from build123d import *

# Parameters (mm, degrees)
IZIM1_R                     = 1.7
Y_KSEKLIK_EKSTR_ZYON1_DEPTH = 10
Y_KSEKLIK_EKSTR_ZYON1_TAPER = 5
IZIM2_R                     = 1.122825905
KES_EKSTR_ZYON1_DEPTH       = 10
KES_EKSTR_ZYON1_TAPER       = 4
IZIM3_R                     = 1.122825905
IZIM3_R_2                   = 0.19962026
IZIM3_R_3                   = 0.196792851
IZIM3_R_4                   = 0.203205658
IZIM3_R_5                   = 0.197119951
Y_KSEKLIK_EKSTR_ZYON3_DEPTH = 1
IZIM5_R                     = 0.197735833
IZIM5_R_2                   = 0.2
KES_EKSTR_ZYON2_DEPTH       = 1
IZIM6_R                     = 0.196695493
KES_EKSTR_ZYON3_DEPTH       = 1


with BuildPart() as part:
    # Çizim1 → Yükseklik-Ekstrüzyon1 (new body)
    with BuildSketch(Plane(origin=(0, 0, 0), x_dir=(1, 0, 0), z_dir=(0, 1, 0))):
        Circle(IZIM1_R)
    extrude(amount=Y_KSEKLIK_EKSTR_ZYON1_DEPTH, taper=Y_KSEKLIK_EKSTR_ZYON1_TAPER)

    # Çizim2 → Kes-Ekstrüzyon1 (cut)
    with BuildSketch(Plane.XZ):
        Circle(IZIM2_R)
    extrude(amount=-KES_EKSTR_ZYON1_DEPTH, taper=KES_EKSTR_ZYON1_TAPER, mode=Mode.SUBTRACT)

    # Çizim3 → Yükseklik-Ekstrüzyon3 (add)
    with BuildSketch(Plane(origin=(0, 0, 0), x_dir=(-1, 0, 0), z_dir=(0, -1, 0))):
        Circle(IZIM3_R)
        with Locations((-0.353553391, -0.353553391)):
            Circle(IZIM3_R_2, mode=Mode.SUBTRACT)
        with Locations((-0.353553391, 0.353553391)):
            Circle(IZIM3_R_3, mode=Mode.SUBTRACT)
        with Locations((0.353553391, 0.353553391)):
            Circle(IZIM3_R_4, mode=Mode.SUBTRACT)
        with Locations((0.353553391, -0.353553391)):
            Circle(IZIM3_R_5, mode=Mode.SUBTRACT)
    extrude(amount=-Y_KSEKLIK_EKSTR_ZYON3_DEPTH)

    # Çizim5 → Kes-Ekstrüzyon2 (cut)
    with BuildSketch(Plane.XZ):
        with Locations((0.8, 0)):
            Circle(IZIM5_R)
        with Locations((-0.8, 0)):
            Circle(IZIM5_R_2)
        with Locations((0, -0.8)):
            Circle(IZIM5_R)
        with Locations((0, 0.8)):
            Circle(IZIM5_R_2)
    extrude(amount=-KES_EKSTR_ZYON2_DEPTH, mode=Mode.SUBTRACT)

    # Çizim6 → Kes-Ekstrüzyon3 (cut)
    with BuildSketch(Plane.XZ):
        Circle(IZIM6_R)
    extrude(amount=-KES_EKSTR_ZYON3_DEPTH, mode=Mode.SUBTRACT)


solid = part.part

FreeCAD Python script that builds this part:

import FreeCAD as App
import Part
import Sketcher

V = App.Vector

doc = App.newDocument("Part")
body = doc.addObject("PartDesign::Body", "Body")

# Sketch on XZ plane
sketch1 = body.newObject("Sketcher::SketchObject", "Sketch")
sketch1.AttachmentSupport = (doc.getObject("XZ_Plane"), [""])
sketch1.MapMode = "FlatFace"
sketch1.addGeometry(Part.Circle(V(0, 0, 0), V(0, 0, 1), 1.7), False)
sketch1.addConstraint([
    Sketcher.Constraint("Coincident", 0, 3, -1, 1),
    Sketcher.Constraint("Diameter", 0, 3.4),
])
pad1 = body.newObject("PartDesign::Pad", "Pad")
pad1.Profile = sketch1
pad1.Length = 10
pad1.Reversed = True
pad1.TaperAngle = -5

# Sketch on XZ plane
sketch2 = body.newObject("Sketcher::SketchObject", "Sketch001")
sketch2.AttachmentSupport = (doc.getObject("XZ_Plane"), [""])
sketch2.MapMode = "FlatFace"
sketch2.addGeometry(Part.Circle(V(0, 0, 0), V(0, 0, 1), 1.1), False)
sketch2.addConstraint([
    Sketcher.Constraint("Coincident", 0, 3, -1, 1),
    Sketcher.Constraint("Diameter", 0, 2.245652),
])
pocket1 = body.newObject("PartDesign::Pocket", "Pocket")
pocket1.Profile = sketch2
pocket1.Length = 10
pocket1.TaperAngle = -4

# Sketch on XZ plane
sketch3 = body.newObject("Sketcher::SketchObject", "Sketch002")
sketch3.AttachmentSupport = (doc.getObject("XZ_Plane"), [""])
sketch3.MapMode = "FlatFace"
sketch3.addGeometry([
    Part.Circle(V(0, 0, 0), V(0, 0, 1), 1.12),  # 0
    Part.Circle(V(0.35, 0.35, 0), V(0, 0, 1), 0.2),  # 1
    Part.Circle(V(-0.35, 0.35, 0), V(0, 0, 1), 0.2),  # 2
    Part.Circle(V(0.35, -0.35, 0), V(0, 0, 1), 0.2),  # 3
    Part.Circle(V(-0.35, -0.35, 0), V(0, 0, 1), 0.2),  # 4
], False)
sketch3.addConstraint([
    Sketcher.Constraint("Coincident", 0, 3, -1, 1),
    Sketcher.Constraint("Symmetric", 2, 3, 3, 3, -1, 1),
    Sketcher.Constraint("Symmetric", 1, 3, 4, 3, -1, 1),
    Sketcher.Constraint("Symmetric", 1, 3, 2, 3, -2),
    Sketcher.Constraint("Diameter", 0, 2.245652),
    Sketcher.Constraint("Diameter", 1, 0.399241),
    Sketcher.Constraint("Diameter", 2, 0.39424),
    Sketcher.Constraint("Diameter", 4, 0.406411),
    Sketcher.Constraint("Diameter", 3, 0.393586),
    Sketcher.Constraint("DistanceX", -1, 1, 1, 3, 0.353553),
    Sketcher.Constraint("DistanceY", -1, 1, 1, 3, 0.353553),
])
pad2 = body.newObject("PartDesign::Pad", "Pad001")
pad2.Profile = sketch3
pad2.Length = 1
pad2.Reversed = True

# Sketch on XZ plane
sketch4 = body.newObject("Sketcher::SketchObject", "Sketch003")
sketch4.AttachmentSupport = (doc.getObject("XZ_Plane"), [""])
sketch4.MapMode = "FlatFace"
sketch4.addGeometry([
    Part.Circle(V(0.8, 0, 0), V(0, 0, 1), 0.2),
    Part.Circle(V(-0.8, 0, 0), V(0, 0, 1), 0.2),
    Part.Circle(V(0, -0.8, 0), V(0, 0, 1), 0.2),
    Part.Circle(V(0, 0.8, 0), V(0, 0, 1), 0.2),
], False)
sketch4.addConstraint([
    Sketcher.Constraint("Equal", 0, 2),
    Sketcher.Constraint("Equal", 1, 3),
    Sketcher.Constraint("Symmetric", 0, 3, 1, 3, -1, 1),
    Sketcher.Constraint("Symmetric", 2, 3, 3, 3, -1, 1),
    Sketcher.Constraint("PointOnObject", 0, 3, -1),
    Sketcher.Constraint("PointOnObject", 2, 3, -2),
    Sketcher.Constraint("Diameter", 1, 0.4),
    Sketcher.Constraint("DistanceX", -1, 1, 0, 3, 0.8),
    Sketcher.Constraint("DistanceY", 2, 3, -1, 1, 0.8),
    Sketcher.Constraint("Diameter", 0, 0.395472),
])
pocket2 = body.newObject("PartDesign::Pocket", "Pocket001")
pocket2.Profile = sketch4
pocket2.Length = 1

# Sketch on XZ plane
sketch5 = body.newObject("Sketcher::SketchObject", "Sketch004")
sketch5.AttachmentSupport = (doc.getObject("XZ_Plane"), [""])
sketch5.MapMode = "FlatFace"
sketch5.addGeometry(Part.Circle(V(0, 0, 0), V(0, 0, 1), 0.2), False)
sketch5.addConstraint([
    Sketcher.Constraint("Coincident", 0, 3, -1, 1),
    Sketcher.Constraint("Diameter", 0, 0.393391),
])
pocket3 = body.newObject("PartDesign::Pocket", "Pocket002")
pocket3.Profile = sketch5
pocket3.Length = 1

doc.recompute()
